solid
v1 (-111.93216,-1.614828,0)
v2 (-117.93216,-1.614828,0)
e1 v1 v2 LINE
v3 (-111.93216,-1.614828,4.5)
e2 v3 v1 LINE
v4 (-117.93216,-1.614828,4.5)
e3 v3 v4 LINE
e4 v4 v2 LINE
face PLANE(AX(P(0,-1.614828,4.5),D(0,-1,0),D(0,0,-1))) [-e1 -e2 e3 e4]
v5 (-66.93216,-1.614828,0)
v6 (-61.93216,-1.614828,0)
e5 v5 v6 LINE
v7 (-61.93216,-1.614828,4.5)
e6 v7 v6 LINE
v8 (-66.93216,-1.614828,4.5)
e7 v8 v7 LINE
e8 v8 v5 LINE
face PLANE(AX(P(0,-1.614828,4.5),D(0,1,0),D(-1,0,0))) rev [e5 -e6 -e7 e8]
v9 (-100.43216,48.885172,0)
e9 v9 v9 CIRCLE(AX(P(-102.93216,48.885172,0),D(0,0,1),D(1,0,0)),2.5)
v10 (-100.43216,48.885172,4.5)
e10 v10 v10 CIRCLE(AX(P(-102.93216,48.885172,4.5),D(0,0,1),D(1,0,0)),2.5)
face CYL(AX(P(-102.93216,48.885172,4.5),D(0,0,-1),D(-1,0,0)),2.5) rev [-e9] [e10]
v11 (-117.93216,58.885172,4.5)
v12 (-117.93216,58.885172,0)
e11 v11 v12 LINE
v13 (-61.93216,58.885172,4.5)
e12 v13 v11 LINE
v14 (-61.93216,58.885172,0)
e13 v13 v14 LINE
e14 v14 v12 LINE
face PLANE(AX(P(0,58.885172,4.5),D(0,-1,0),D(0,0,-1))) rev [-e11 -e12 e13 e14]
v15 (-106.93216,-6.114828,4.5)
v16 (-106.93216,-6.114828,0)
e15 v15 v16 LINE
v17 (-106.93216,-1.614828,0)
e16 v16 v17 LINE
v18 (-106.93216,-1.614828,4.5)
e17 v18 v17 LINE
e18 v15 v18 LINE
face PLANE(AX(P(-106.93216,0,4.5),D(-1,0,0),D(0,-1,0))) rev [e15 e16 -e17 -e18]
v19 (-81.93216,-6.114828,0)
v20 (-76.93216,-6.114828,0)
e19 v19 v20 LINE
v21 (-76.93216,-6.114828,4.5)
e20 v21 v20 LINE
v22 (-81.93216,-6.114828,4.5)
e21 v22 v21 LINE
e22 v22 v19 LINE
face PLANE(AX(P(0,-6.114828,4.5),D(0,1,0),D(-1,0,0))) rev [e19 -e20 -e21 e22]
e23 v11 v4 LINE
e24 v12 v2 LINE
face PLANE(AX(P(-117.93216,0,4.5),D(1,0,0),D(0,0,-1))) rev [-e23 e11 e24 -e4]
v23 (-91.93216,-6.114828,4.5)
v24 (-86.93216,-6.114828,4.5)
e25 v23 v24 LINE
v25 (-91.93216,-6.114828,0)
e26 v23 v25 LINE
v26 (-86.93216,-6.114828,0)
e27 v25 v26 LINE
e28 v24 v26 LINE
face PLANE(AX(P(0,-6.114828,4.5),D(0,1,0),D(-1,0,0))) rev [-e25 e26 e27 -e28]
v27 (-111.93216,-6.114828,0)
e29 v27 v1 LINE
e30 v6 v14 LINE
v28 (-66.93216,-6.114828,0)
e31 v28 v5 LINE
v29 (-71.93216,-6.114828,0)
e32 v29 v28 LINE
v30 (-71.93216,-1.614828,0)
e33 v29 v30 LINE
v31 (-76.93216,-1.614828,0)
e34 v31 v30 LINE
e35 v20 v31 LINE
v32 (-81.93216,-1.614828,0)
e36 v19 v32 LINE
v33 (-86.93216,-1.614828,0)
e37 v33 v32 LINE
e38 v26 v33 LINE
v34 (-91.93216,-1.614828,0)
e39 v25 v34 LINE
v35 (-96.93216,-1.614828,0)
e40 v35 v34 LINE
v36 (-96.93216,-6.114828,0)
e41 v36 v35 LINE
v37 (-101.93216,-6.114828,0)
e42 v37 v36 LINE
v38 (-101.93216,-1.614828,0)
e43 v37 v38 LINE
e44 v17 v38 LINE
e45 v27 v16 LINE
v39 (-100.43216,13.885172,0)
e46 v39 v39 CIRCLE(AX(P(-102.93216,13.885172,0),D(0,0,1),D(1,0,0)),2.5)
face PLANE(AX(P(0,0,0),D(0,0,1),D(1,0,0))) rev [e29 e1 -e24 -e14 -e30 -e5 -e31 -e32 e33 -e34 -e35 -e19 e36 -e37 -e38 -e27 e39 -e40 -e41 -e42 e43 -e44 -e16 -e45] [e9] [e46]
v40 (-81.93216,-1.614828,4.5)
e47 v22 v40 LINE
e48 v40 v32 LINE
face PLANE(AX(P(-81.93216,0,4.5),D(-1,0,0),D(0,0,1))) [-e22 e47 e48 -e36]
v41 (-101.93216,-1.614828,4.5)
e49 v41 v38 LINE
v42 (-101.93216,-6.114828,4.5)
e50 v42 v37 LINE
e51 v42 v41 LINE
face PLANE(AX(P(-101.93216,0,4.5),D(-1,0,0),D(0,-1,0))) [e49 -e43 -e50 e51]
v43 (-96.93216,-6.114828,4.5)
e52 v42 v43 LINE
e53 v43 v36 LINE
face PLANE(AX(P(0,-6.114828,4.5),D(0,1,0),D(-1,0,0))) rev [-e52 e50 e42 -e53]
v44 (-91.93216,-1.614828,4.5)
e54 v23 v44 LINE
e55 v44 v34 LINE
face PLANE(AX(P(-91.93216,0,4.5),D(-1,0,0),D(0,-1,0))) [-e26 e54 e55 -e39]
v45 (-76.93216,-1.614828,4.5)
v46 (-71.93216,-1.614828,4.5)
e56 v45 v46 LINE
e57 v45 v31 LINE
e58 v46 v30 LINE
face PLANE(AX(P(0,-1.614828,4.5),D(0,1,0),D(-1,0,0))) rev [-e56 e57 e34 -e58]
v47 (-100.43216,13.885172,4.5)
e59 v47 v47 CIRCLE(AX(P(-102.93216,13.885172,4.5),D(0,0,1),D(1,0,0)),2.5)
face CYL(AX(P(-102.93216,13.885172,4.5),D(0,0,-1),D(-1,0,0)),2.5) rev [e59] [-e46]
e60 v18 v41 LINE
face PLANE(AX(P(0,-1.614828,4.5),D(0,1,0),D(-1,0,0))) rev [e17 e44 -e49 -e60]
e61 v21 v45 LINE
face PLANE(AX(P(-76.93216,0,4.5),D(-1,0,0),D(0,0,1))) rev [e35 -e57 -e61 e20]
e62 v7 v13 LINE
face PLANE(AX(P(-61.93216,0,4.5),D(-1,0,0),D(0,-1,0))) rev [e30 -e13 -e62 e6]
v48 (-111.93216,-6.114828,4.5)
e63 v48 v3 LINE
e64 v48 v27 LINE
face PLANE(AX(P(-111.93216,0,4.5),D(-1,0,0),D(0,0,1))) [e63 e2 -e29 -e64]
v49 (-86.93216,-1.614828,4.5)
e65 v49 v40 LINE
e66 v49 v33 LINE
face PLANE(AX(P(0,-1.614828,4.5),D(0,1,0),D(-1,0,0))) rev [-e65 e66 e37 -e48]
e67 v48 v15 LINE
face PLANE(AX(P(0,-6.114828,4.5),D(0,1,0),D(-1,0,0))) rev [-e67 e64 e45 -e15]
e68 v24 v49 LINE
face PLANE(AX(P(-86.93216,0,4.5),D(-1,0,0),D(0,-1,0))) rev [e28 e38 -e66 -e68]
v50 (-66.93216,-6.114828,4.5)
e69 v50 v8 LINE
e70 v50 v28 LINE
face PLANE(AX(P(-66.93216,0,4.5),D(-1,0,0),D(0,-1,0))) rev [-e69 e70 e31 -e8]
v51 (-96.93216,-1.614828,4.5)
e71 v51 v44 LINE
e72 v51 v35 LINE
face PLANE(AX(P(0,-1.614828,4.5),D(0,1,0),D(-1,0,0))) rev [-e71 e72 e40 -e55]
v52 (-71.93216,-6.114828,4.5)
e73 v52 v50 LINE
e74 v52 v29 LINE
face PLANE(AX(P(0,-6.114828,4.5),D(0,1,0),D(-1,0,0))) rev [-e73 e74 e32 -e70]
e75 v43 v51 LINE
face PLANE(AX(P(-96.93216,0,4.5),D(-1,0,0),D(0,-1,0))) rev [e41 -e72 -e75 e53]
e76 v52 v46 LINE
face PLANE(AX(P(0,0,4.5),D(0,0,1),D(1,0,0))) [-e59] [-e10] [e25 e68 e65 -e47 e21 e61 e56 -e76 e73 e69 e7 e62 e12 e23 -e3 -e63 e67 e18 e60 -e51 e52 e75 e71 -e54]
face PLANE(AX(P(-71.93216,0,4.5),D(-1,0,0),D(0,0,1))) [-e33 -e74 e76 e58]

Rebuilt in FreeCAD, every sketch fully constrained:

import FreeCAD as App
import Part
import Sketcher


def add_polygon(sketch, points):
    """Adds a closed chain of lines whose ends are joined by coincident constraints."""
    first, n = sketch.GeometryCount, len(points)
    for a, b in zip(points, points[1:] + points[:1]):
        sketch.addGeometry(Part.LineSegment(App.Vector(*a, 0), App.Vector(*b, 0)), False)
    for i in range(n):
        sketch.addConstraint(Sketcher.Constraint("Coincident", first + i, 2, first + (i + 1) % n, 1))

doc = App.newDocument("Part")
body = doc.addObject("PartDesign::Body", "Body")

# Sketch on XY plane
sketch1 = body.newObject("Sketcher::SketchObject", "Sketch")
sketch1.AttachmentSupport = (doc.getObject("XY_Plane"), [""])
sketch1.MapMode = "FlatFace"
add_polygon(sketch1, [(-111.9, -1.6), (-111.9, -6.1), (-106.9, -6.1), (-106.9, -1.6), (-101.9, -1.6), (-101.9, -6.1), (-96.9, -6.1), (-96.9, -1.6), (-91.9, -1.6), (-91.9, -6.1), (-86.9, -6.1), (-86.9, -1.6), (-81.9, -1.6), (-81.9, -6.1), (-76.9, -6.1), (-76.9, -1.6), (-71.9, -1.6), (-71.9, -6.1), (-66.9, -6.1), (-66.9, -1.6), (-61.9, -1.6), (-61.9, 58.9), (-117.9, 58.9), (-117.9, -1.6)])  # lines 0-23
sketch1.addGeometry(Part.Circle(App.Vector(-102.9, 13.9, 0), App.Vector(0, 0, 1), 2.5), False)  # 24
sketch1.addGeometry(Part.Circle(App.Vector(-102.9, 48.9, 0), App.Vector(0, 0, 1), 2.5), False)  # 25
sketch1.addConstraint([
    Sketcher.Constraint("Vertical", 0),
    Sketcher.Constraint("Horizontal", 1),
    Sketcher.Constraint("Vertical", 2),
    Sketcher.Constraint("Horizontal", 3),
    Sketcher.Constraint("Vertical", 4),
    Sketcher.Constraint("Horizontal", 5),
    Sketcher.Constraint("Vertical", 6),
    Sketcher.Constraint("Horizontal", 7),
    Sketcher.Constraint("Vertical", 8),
    Sketcher.Constraint("Horizontal", 9),
    Sketcher.Constraint("Vertical", 10),
    Sketcher.Constraint("Horizontal", 11),
    Sketcher.Constraint("Vertical", 12),
    Sketcher.Constraint("Horizontal", 13),
    Sketcher.Constraint("Vertical", 14),
    Sketcher.Constraint("Horizontal", 15),
    Sketcher.Constraint("Vertical", 16),
    Sketcher.Constraint("Horizontal", 17),
    Sketcher.Constraint("Vertical", 18),
    Sketcher.Constraint("Horizontal", 19),
    Sketcher.Constraint("Vertical", 20),
    Sketcher.Constraint("Horizontal", 21),
    Sketcher.Constraint("Vertical", 22),
    Sketcher.Constraint("Horizontal", 23),
    Sketcher.Constraint("Equal", 24, 25),
    Sketcher.Constraint("Horizontal", 1, 2, 4, 2),
    Sketcher.Constraint("Horizontal", 3, 2, 6, 2),
    Sketcher.Constraint("Horizontal", 5, 2, 8, 2),
    Sketcher.Constraint("Horizontal", 7, 2, 10, 2),
    Sketcher.Constraint("Horizontal", 9, 2, 12, 2),
    Sketcher.Constraint("Horizontal", 11, 2, 14, 2),
    Sketcher.Constraint("Horizontal", 13, 2, 16, 2),
    Sketcher.Constraint("Horizontal", 15, 2, 18, 2),
    Sketcher.Constraint("Horizontal", 19, 2, 22, 2),
    Sketcher.Constraint("Vertical", 24, 3, 25, 3),
    Sketcher.Constraint("Equal", 1, 3),
    Sketcher.Constraint("Equal", 3, 5),
    Sketcher.Constraint("Equal", 5, 7),
    Sketcher.Constraint("Equal", 7, 9),
    Sketcher.Constraint("Equal", 9, 11),
    Sketcher.Constraint("Equal", 11, 13),
    Sketcher.Constraint("Equal", 13, 15),
    Sketcher.Constraint("Equal", 15, 17),
    Sketcher.Constraint("Equal", 17, 19),
    Sketcher.Constraint("Diameter", 24, 5.0),
    Sketcher.Constraint("DistanceX", 1, 1, 1, 2, 5.0),
    Sketcher.Constraint("DistanceX", 21, 2, 21, 1, 56.0),
    Sketcher.Constraint("DistanceY", 0, 2, 0, 1, 4.5),
    Sketcher.Constraint("DistanceY", 20, 1, 20, 2, 60.5),
    Sketcher.Constraint("DistanceY", 24, 3, 25, 3, 35.0),
    Sketcher.Constraint("DistanceX", 0, 2, 24, 3, 9.0),
    Sketcher.Constraint("DistanceY", 0, 2, 24, 3, 20.0),
    Sketcher.Constraint("DistanceX", 24, 3, -1, 1, 102.93216),
    Sketcher.Constraint("DistanceY", -1, 1, 24, 3, 13.885172),
])
pad1 = body.newObject("PartDesign::Pad", "Pad")
pad1.Profile = sketch1
pad1.Length = 4.5

doc.recompute()
